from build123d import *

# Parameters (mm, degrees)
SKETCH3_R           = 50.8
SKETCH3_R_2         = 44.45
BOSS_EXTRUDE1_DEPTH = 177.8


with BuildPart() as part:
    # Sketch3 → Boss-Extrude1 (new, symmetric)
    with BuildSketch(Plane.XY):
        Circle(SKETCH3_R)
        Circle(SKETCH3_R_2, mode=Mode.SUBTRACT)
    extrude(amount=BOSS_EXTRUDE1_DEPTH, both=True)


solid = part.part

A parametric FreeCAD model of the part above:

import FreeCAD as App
import Part
import Sketcher
from FreeCAD import Vector
Q = App.Units.Quantity

doc = App.newDocument("Part")
body = doc.addObject("PartDesign::Body", "Body")

# Sketch on XY plane
sketch1 = doc.addObject("Sketcher::SketchObject", "Sketch")
body.addObject(sketch1)
sketch1.AttachmentSupport = (doc.XY_Plane, [""])
sketch1.MapMode = "FlatFace"
sketch1.addGeometry(Part.Circle(Vector(0, 0, 0), Vector(0, 0, 1), 51), False)
sketch1.addGeometry(Part.Circle(Vector(0, 0, 0), Vector(0, 0, 1), 44), False)
sketch1.addConstraint(Sketcher.Constraint("Coincident", 0, 3, -1, 1))
sketch1.addConstraint(Sketcher.Constraint("Coincident", 1, 3, -1, 1))
sketch1.addConstraint(Sketcher.Constraint("Diameter", 0, Q("4 in")))
sketch1.addConstraint(Sketcher.Constraint("Diameter", 1, Q("3.5 in")))
pad1 = doc.addObject("PartDesign::Pad", "Pad")
body.addObject(pad1)
pad1.Profile = sketch1
pad1.Length = Q("14 in")
pad1.Midplane = True

doc.recompute()
